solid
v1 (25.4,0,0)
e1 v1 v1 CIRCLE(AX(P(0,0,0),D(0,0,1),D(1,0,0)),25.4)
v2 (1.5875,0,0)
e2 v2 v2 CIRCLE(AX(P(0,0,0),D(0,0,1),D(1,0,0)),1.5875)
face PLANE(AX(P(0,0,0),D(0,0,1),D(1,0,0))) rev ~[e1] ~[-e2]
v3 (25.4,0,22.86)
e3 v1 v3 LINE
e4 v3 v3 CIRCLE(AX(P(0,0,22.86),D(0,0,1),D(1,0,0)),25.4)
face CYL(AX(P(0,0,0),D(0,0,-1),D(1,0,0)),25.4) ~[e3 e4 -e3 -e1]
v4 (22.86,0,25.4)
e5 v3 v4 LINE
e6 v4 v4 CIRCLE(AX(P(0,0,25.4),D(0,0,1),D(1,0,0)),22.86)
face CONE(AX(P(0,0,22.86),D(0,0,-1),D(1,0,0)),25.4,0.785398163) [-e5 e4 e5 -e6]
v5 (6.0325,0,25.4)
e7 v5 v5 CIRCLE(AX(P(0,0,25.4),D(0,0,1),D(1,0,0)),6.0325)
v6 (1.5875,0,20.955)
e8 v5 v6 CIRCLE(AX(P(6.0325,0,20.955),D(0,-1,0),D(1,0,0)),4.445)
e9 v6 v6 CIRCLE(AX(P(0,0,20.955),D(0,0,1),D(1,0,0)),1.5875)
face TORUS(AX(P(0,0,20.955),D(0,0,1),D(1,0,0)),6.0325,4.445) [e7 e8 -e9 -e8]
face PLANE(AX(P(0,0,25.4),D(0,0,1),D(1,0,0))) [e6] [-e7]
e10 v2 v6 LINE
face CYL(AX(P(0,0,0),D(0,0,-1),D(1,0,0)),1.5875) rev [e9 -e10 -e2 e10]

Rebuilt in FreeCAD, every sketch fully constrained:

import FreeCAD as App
import Part
import Sketcher
from FreeCAD import Vector
Q = App.Units.Quantity


def edges_at(feature, points):
    """Names of the edges that pass closest to the given points."""
    edges = feature.Shape.Edges
    near = lambda p: min(range(len(edges)), key=lambda i: edges[i].distToShape(Part.Vertex(*p))[0])
    return sorted({f"Edge{near(p) + 1}" for p in points})

doc = App.newDocument("Part")
params = doc.addObject("Spreadsheet::Sheet", "Params")
for row, (alias, value) in enumerate([
    ("sketch1_diameter", "2 in"),
    ("sketch1_diameter2", "0.125 in"),
    ("pad1_length", "1 in"),
    ("chamfer_size", "0.1 in"),
    ("fillet_radius", "0.175 in"),
], start=1):
    params.set(f"A{row}", alias)
    params.set(f"B{row}", "=" + value)
    params.setAlias(f"B{row}", alias)

body = doc.addObject("PartDesign::Body", "Body")

sketch1 = body.newObject("Sketcher::SketchObject", "Sketch")
sketch1.AttachmentSupport = (doc.getObject("XY_Plane"), [""])
sketch1.MapMode = "FlatFace"
sketch1.addGeometry(Part.Circle(Vector(0, 0, 0), Vector(0, 0, 1), 25.4), False)
sketch1.addGeometry(Part.Circle(Vector(0, 0, 0), Vector(0, 0, 1), 1.6), False)
sketch1.addConstraint(Sketcher.Constraint("Coincident", 0, 3, -1, 1))
sketch1.addConstraint(Sketcher.Constraint("Coincident", 1, 3, -1, 1))
sketch1.addConstraint(Sketcher.Constraint("Diameter", 0, Q("2 in")))
sketch1.addConstraint(Sketcher.Constraint("Diameter", 1, Q("0.125 in")))
sketch1.setExpression("Constraints[2]", "Params.sketch1_diameter")
sketch1.setExpression("Constraints[3]", "Params.sketch1_diameter2")
pad1 = body.newObject("PartDesign::Pad", "Pad")
pad1.Profile = sketch1
pad1.setExpression("Length", "Params.pad1_length")
doc.recompute()

chamfer = body.newObject("PartDesign::Chamfer", "Chamfer")
chamfer.Base = (pad1, edges_at(pad1, [(-25.4, 0, 25.4)]))
chamfer.setExpression("Size", "Params.chamfer_size")
doc.recompute()

fillet = body.newObject("PartDesign::Fillet", "Fillet")
fillet.Base = (chamfer, edges_at(chamfer, [(-1.587, 0, 25.4)]))
fillet.setExpression("Radius", "Params.fillet_radius")

doc.recompute()
